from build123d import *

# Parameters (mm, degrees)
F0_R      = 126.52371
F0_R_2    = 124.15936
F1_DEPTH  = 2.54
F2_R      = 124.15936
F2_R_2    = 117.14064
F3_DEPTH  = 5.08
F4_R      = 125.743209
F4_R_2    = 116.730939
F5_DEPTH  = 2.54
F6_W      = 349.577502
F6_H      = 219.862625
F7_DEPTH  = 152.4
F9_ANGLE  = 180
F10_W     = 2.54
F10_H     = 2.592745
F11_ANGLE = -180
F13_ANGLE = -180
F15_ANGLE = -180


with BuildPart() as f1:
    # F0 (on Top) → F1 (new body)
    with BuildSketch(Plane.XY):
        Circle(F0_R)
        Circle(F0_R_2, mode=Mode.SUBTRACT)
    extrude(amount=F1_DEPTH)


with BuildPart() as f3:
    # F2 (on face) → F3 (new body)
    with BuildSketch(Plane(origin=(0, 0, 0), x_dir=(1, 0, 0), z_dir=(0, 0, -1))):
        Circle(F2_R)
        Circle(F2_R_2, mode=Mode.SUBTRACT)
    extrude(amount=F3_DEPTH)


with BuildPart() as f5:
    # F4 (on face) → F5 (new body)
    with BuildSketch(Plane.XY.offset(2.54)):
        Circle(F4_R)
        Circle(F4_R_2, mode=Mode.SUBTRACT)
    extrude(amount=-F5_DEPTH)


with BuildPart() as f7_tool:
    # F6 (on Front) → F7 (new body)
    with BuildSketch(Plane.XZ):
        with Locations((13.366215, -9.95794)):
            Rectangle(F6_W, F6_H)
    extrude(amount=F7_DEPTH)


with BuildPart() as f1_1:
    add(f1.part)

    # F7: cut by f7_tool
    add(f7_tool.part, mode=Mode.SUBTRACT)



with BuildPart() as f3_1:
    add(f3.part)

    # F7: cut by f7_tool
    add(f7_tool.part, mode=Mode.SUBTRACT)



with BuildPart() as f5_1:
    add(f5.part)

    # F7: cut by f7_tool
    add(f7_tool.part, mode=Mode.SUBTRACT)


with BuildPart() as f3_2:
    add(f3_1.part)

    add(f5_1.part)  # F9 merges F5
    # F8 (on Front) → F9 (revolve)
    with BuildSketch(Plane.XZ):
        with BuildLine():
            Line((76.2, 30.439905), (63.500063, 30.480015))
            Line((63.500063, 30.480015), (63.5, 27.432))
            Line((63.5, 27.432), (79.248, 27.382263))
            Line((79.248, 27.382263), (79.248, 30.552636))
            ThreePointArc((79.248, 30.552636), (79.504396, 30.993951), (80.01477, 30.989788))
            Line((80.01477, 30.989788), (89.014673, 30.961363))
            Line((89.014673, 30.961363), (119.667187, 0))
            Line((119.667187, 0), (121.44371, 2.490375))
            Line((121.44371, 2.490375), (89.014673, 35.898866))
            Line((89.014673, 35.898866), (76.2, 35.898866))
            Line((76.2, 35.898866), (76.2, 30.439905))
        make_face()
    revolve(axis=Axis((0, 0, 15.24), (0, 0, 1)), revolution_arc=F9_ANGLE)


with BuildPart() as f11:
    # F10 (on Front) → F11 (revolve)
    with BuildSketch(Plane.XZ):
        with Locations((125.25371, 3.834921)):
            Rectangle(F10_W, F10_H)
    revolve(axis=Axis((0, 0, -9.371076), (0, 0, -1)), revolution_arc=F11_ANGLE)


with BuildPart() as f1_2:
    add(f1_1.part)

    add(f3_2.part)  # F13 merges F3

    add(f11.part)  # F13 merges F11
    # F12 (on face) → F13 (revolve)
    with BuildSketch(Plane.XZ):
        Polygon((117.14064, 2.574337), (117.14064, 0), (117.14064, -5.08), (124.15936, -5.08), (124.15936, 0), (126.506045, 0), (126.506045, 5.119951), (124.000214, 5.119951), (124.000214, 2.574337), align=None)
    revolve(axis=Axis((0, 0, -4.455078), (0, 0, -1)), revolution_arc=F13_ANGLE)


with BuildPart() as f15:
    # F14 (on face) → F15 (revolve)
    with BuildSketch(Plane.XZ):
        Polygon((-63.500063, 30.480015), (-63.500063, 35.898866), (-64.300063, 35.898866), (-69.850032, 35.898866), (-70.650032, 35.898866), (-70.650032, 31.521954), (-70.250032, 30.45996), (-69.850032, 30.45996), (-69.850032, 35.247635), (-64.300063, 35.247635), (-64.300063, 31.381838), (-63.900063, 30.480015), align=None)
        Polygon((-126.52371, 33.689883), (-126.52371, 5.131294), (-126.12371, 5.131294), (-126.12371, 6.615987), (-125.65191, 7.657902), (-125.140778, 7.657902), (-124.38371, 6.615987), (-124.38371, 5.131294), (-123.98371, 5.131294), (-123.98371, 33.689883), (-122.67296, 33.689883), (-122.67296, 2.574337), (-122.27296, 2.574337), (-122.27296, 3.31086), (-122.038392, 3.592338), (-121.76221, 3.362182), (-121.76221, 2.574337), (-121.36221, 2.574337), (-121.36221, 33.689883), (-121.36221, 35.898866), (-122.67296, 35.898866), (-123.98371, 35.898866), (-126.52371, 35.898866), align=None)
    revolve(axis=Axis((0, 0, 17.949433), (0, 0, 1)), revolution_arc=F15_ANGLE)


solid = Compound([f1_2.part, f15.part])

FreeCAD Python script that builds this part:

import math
import FreeCAD as App
import Part
import Sketcher

V = App.Vector
Q = App.Units.Quantity


def add_polygon(sketch, points):
    """Adds a closed chain of lines whose ends are joined by coincident constraints."""
    first, n = sketch.GeometryCount, len(points)
    for a, b in zip(points, points[1:] + points[:1]):
        sketch.addGeometry(Part.LineSegment(App.Vector(*a, 0), App.Vector(*b, 0)), False)
    for i in range(n):
        sketch.addConstraint(Sketcher.Constraint("Coincident", first + i, 2, first + (i + 1) % n, 1))

doc = App.newDocument("Part")
body = doc.addObject("PartDesign::Body", "Body")

# Sketch on XY plane
sketch1 = body.newObject("Sketcher::SketchObject", "Sketch")
sketch1.AttachmentSupport = (doc.getObject("XY_Plane"), [""])
sketch1.MapMode = "FlatFace"
sketch1.addGeometry([
    Part.Circle(V(0, 0, 0), V(0, 0, 1), 127),
    Part.Circle(V(0, 0, 0), V(0, 0, 1), 124),
], False)
sketch1.addConstraint([
    Sketcher.Constraint("Coincident", 0, 3, -1, 1),
    Sketcher.Constraint("Coincident", 1, 3, -1, 1),
    Sketcher.Constraint("Diameter", 0, 253.04742),
    Sketcher.Constraint("Diameter", 1, 248.31872),
])
pad1 = body.newObject("PartDesign::Pad", "Pad")
pad1.Profile = sketch1
pad1.Length = Q("0.1 in")
body2 = doc.addObject("PartDesign::Body", "Body001")

# Sketch on XY plane
sketch2 = body2.newObject("Sketcher::SketchObject", "Sketch001")
sketch2.AttachmentSupport = (doc.getObject("XY_Plane001"), [""])
sketch2.MapMode = "FlatFace"
sketch2.addGeometry([
    Part.Circle(V(0, 0, 0), V(0, 0, 1), 124),
    Part.Circle(V(0, 0, 0), V(0, 0, 1), 117),
], False)
sketch2.addConstraint([
    Sketcher.Constraint("Coincident", 0, 3, -1, 1),
    Sketcher.Constraint("Coincident", 1, 3, -1, 1),
    Sketcher.Constraint("Diameter", 0, 248.31872),
    Sketcher.Constraint("Diameter", 1, 234.28128),
])
pad2 = body2.newObject("PartDesign::Pad", "Pad001")
pad2.Profile = sketch2
pad2.Length = Q("0.2 in")
pad2.Reversed = True
body3 = doc.addObject("PartDesign::Body", "Body002")

# Sketch on XY plane
sketch3 = body3.newObject("Sketcher::SketchObject", "Sketch002")
sketch3.AttachmentSupport = (doc.getObject("XY_Plane002"), [""])
sketch3.MapMode = "FlatFace"
sketch3.AttachmentOffset = App.Placement(V(0, 0, 0.1 * 25.4), App.Rotation())
sketch3.addGeometry([
    Part.Circle(V(0, 0, 0), V(0, 0, 1), 126),
    Part.Circle(V(0, 0, 0), V(0, 0, 1), 117),
], False)
sketch3.addConstraint([
    Sketcher.Constraint("Coincident", 0, 3, -1, 1),
    Sketcher.Constraint("Coincident", 1, 3, -1, 1),
    Sketcher.Constraint("Diameter", 1, 233.461878),
    Sketcher.Constraint("Diameter", 0, 251.486418),
])
pad3 = body3.newObject("PartDesign::Pad", "Pad002")
pad3.Profile = sketch3
pad3.Length = Q("0.1 in")
pad3.Reversed = True
body4 = doc.addObject("PartDesign::Body", "Body003")

# Sketch on XZ plane
sketch4 = body4.newObject("Sketcher::SketchObject", "Sketch003")
sketch4.AttachmentSupport = (doc.getObject("XZ_Plane003"), [""])
sketch4.MapMode = "FlatFace"
add_polygon(sketch4, [(-161, 100), (-161, -120), (188, -120), (188, 100)])  # lines 0-3
sketch4.addConstraint([
    Sketcher.Constraint("Vertical", 0),
    Sketcher.Constraint("Horizontal", 1),
    Sketcher.Constraint("Vertical", 2),
    Sketcher.Constraint("Horizontal", 3),
    Sketcher.Constraint("DistanceX", 1, 1, 1, 2, 349.577502),
    Sketcher.Constraint("DistanceY", 0, 2, 0, 1, 219.862625),
    Sketcher.Constraint("DistanceX", 0, 2, -1, 1, 161.422536),
    Sketcher.Constraint("DistanceY", 0, 2, -1, 1, 119.889252),
])
pad4 = body4.newObject("PartDesign::Pad", "Pad003")
pad4.Profile = sketch4
pad4.Length = Q("6 in")
doc.recompute()

body5 = doc.addObject("PartDesign::Body", "Body004")
body5.BaseFeature = body4
boolean = body.newObject("PartDesign::Boolean", "Boolean")
boolean.Type = "Cut"
boolean.addObjects([body5])
doc.recompute()

body6 = doc.addObject("PartDesign::Body", "Body005")
body6.BaseFeature = body4
boolean2 = body2.newObject("PartDesign::Boolean", "Boolean001")
boolean2.Type = "Cut"
boolean2.addObjects([body6])
doc.recompute()

boolean3 = body3.newObject("PartDesign::Boolean", "Boolean002")
boolean3.Type = "Cut"
boolean3.addObjects([body4])
doc.recompute()

boolean4 = body2.newObject("PartDesign::Boolean", "Boolean003")
boolean4.Type = "Fuse"
boolean4.addObjects([body3])

# Sketch on XZ plane
sketch5 = body2.newObject("Sketcher::SketchObject", "Sketch004")
sketch5.AttachmentSupport = (doc.getObject("XZ_Plane001"), [""])
sketch5.MapMode = "FlatFace"
sketch5.addGeometry([
    Part.LineSegment(V(76.2, 30.4, 0), V(63.5, 30.5, 0)),  # 0
    Part.LineSegment(V(63.5, 30.5, 0), V(63.5, 27.4, 0)),  # 1
    Part.LineSegment(V(63.5, 27.4, 0), V(79.2, 27.4, 0)),  # 2
    Part.LineSegment(V(79.2, 27.4, 0), V(79.2, 30.6, 0)),  # 3
    Part.ArcOfCircle(Part.Circle(V(79.8, 30.6, 0), V(0, 0, 1), 0.5), math.radians(59), math.radians(180)),  # 4
    Part.LineSegment(V(80, 31, 0), V(89, 31, 0)),  # 5
    Part.LineSegment(V(89, 31, 0), V(119.7, 0, 0)),  # 6
    Part.LineSegment(V(119.7, 0, 0), V(121.4, 2.5, 0)),  # 7
    Part.LineSegment(V(121.4, 2.5, 0), V(89, 35.9, 0)),  # 8
    Part.LineSegment(V(89, 35.9, 0), V(76.2, 35.9, 0)),  # 9
    Part.LineSegment(V(76.2, 35.9, 0), V(76.2, 30.4, 0)),  # 10
], False)
sketch5.addConstraint([
    Sketcher.Constraint("Coincident", 0, 2, 1, 1),
    Sketcher.Constraint("Coincident", 1, 2, 2, 1),
    Sketcher.Constraint("Coincident", 2, 2, 3, 1),
    Sketcher.Constraint("Tangent", 3, 2, 4, 2),
    Sketcher.Constraint("Coincident", 4, 1, 5, 1),
    Sketcher.Constraint("Coincident", 5, 2, 6, 1),
    Sketcher.Constraint("Coincident", 6, 2, 7, 1),
    Sketcher.Constraint("Coincident", 7, 2, 8, 1),
    Sketcher.Constraint("Coincident", 8, 2, 9, 1),
    Sketcher.Constraint("Coincident", 9, 2, 10, 1),
    Sketcher.Constraint("Coincident", 10, 2, 0, 1),
    Sketcher.Constraint("Vertical", 3),
    Sketcher.Constraint("Horizontal", 9),
    Sketcher.Constraint("Vertical", 10),
    Sketcher.Constraint("PointOnObject", 6, 2, -1),
    Sketcher.Constraint("Parallel", 0, 2),
    Sketcher.Constraint("Parallel", 2, 5),
    Sketcher.Constraint("Vertical", 5, 2, 8, 2),
    Sketcher.Constraint("Radius", 4, Q("0.02 in")),
    Sketcher.Constraint("DistanceX", -1, 1, 9, 2, Q("3 in")),
    Sketcher.Constraint("Distance", 0, Q("0.5 in")),
    Sketcher.Constraint("DistanceX", -1, 1, 1, 2, Q("2.5 in")),
    Sketcher.Constraint("DistanceX", -1, 1, 4, 3, Q("3.14 in")),
    Sketcher.Constraint("DistanceY", -1, 1, 1, 2, Q("1.08 in")),
    Sketcher.Constraint("DistanceY", 10, 2, 10, 1, 5.458961),
    Sketcher.Constraint("DistanceY", 2, 2, 5, 2, 3.5791),
    Sketcher.Constraint("DistanceX", 9, 2, 9, 1, 12.814673),
    Sketcher.Constraint("DistanceY", 3, 1, 3, 2, 3.170373),
    Sketcher.Constraint("DistanceX", -1, 1, 4, 1, 80.01477),
    Sketcher.Constraint("DistanceX", -1, 1, 7, 2, 121.44371),
    Sketcher.Constraint("DistanceY", 0, 2, 4, 3, 0.07262),
    Sketcher.Constraint("DistanceY", 7, 2, 4, 3, 28.06226),
    Sketcher.Constraint("Distance", 6, 43.568138),
])
revolution = body2.newObject("PartDesign::Revolution", "Revolution")
revolution.Profile = sketch5
revolution.ReferenceAxis = (sketch5, ["V_Axis"])
revolution.Angle = 180
body7 = doc.addObject("PartDesign::Body", "Body006")

# Sketch on XZ plane
sketch6 = body7.newObject("Sketcher::SketchObject", "Sketch005")
sketch6.AttachmentSupport = (doc.getObject("XZ_Plane006"), [""])
sketch6.MapMode = "FlatFace"
add_polygon(sketch6, [(124, 5.1), (124, 2.5), (126.5, 2.5), (126.5, 5.1)])  # lines 0-3
sketch6.addConstraint([
    Sketcher.Constraint("Vertical", 0),
    Sketcher.Constraint("Horizontal", 1),
    Sketcher.Constraint("Vertical", 2),
    Sketcher.Constraint("Horizontal", 3),
    Sketcher.Constraint("DistanceX", 1, 1, 1, 2, Q("0.1 in")),
    Sketcher.Constraint("DistanceY", 0, 2, 0, 1, 2.592745),
    Sketcher.Constraint("DistanceX", -1, 1, 0, 2, 123.98371),
    Sketcher.Constraint("DistanceY", -1, 1, 0, 2, 2.538549),
])
revolution2 = body7.newObject("PartDesign::Revolution", "Revolution001")
revolution2.Profile = sketch6
revolution2.ReferenceAxis = (sketch6, ["V_Axis"])
revolution2.Angle = 180
doc.recompute()

boolean5 = body.newObject("PartDesign::Boolean", "Boolean004")
boolean5.Type = "Fuse"
boolean5.addObjects([body2])
doc.recompute()

boolean6 = body.newObject("PartDesign::Boolean", "Boolean005")
boolean6.Type = "Fuse"
boolean6.addObjects([body7])

# Sketch on XZ plane
sketch7 = body.newObject("Sketcher::SketchObject", "Sketch006")
sketch7.AttachmentSupport = (doc.getObject("XZ_Plane"), [""])
sketch7.MapMode = "FlatFace"
add_polygon(sketch7, [(117.1, 2.6), (117.1, -5.1), (124.2, -5.1), (124.2, 0), (126.5, 0), (126.5, 5.1), (124, 5.1), (124, 2.6)])  # lines 0-7
sketch7.addConstraint([
    Sketcher.Constraint("Vertical", 0),
    Sketcher.Constraint("Horizontal", 1),
    Sketcher.Constraint("Vertical", 2),
    Sketcher.Constraint("Horizontal", 3),
    Sketcher.Constraint("Vertical", 4),
    Sketcher.Constraint("Horizontal", 5),
    Sketcher.Constraint("Vertical", 6),
    Sketcher.Constraint("Horizontal", 7),
    Sketcher.Constraint("PointOnObject", 2, 2, -1),
    Sketcher.Constraint("DistanceY", 2, 1, 2, 2, Q("0.2 in")),
    Sketcher.Constraint("DistanceX", 1, 1, 1, 2, 7.01872),
    Sketcher.Constraint("DistanceX", 5, 2, 5, 1, 2.505831),
    Sketcher.Constraint("DistanceY", 4, 1, 4, 2, 5.119951),
    Sketcher.Constraint("DistanceX", 3, 1, 3, 2, 2.346685),
    Sketcher.Constraint("DistanceY", 0, 2, 0, 1, 7.654337),
    Sketcher.Constraint("DistanceX", -1, 1, 0, 2, 117.14064),
])
revolution3 = body.newObject("PartDesign::Revolution", "Revolution002")
revolution3.Profile = sketch7
revolution3.ReferenceAxis = (sketch7, ["V_Axis"])
revolution3.Angle = 180
body8 = doc.addObject("PartDesign::Body", "Body007")
body8.AllowCompound = True

# Sketch on XZ plane
sketch8 = body8.newObject("Sketcher::SketchObject", "Sketch007")
sketch8.AttachmentSupport = (doc.getObject("XZ_Plane007"), [""])
sketch8.MapMode = "FlatFace"
add_polygon(sketch8, [(-63.5, 30.48), (-63.5, 35.9), (-70.65, 35.9), (-70.65, 31.52), (-70.25, 30.46), (-69.85, 30.46), (-69.85, 35.25), (-64.3, 35.25), (-64.3, 31.38), (-63.9, 30.48)])  # lines 0-9
add_polygon(sketch8, [(-126.52, 5.13), (-126.12, 5.13), (-126.12, 6.62), (-125.65, 7.66), (-125.14, 7.66), (-124.38, 6.62), (-124.38, 5.13), (-123.98, 5.13), (-123.98, 33.69), (-122.67, 33.69), (-122.67, 2.57), (-122.27, 2.57), (-122.27, 3.31), (-122.04, 3.59), (-121.76, 3.36), (-121.76, 2.57), (-121.36, 2.57), (-121.36, 35.9), (-126.52, 35.9)])  # lines 10-28
sketch8.addConstraint([
    Sketcher.Constraint("Vertical", 0),
    Sketcher.Constraint("Horizontal", 1),
    Sketcher.Constraint("Vertical", 2),
    Sketcher.Constraint("Horizontal", 4),
    Sketcher.Constraint("Vertical", 5),
    Sketcher.Constraint("Horizontal", 6),
    Sketcher.Constraint("Vertical", 7),
    Sketcher.Constraint("Horizontal", 9),
    Sketcher.Constraint("Horizontal", 10),
    Sketcher.Constraint("Vertical", 11),
    Sketcher.Constraint("Horizontal", 13),
    Sketcher.Constraint("Vertical", 15),
    Sketcher.Constraint("Horizontal", 16),
    Sketcher.Constraint("Vertical", 17),
    Sketcher.Constraint("Horizontal", 18),
    Sketcher.Constraint("Vertical", 19),
    Sketcher.Constraint("Horizontal", 20),
    Sketcher.Constraint("Vertical", 21),
    Sketcher.Constraint("Vertical", 24),
    Sketcher.Constraint("Horizontal", 25),
    Sketcher.Constraint("Vertical", 26),
    Sketcher.Constraint("Horizontal", 27),
    Sketcher.Constraint("Vertical", 28),
    Sketcher.Constraint("Horizontal", 11, 2, 14, 2),
    Sketcher.Constraint("Horizontal", 10, 2, 15, 2),
    Sketcher.Constraint("Horizontal", 20, 2, 24, 2),
    Sketcher.Constraint("Horizontal", 1, 2, 26, 2),
    Sketcher.Constraint("Equal", 4, 9),
    Sketcher.Constraint("Equal", 9, 10),
    Sketcher.Constraint("Equal", 10, 16),
    Sketcher.Constraint("Equal", 16, 20),
    Sketcher.Constraint("Equal", 20, 25),
    Sketcher.Constraint("DistanceX", 27, 2, 17, 2, Q("0.1 in")),
    Sketcher.Constraint("DistanceX", 4, 1, 4, 2, 0.4),
    Sketcher.Constraint("DistanceX", 27, 2, 27, 1, 5.1615),
    Sketcher.Constraint("DistanceX", 1, 2, 1, 1, 7.149969),
    Sketcher.Constraint("DistanceX", 6, 1, 6, 2, 5.549969),
    Sketcher.Constraint("DistanceX", 18, 1, 18, 2, 1.31075),
    Sketcher.Constraint("DistanceY", 0, 1, 0, 2, 5.418851),
    Sketcher.Constraint("DistanceY", 2, 2, 2, 1, 4.376912),
    Sketcher.Constraint("DistanceY", 17, 1, 17, 2, 28.558589),
    Sketcher.Constraint("DistanceY", 26, 1, 26, 2, 33.324529),
    Sketcher.Constraint("DistanceY", 28, 2, 28, 1, 30.767572),
    Sketcher.Constraint("DistanceX", 2, 2, 3, 2, 0.4),
    Sketcher.Constraint("DistanceX", 11, 2, 12, 2, 0.4718),
    Sketcher.Constraint("DistanceY", 20, 2, 22, 2, 1.018001),
    Sketcher.Constraint("Distance", 8, 0.986552),
    Sketcher.Constraint("Distance", 14, 1.28792),
    Sketcher.Constraint("Distance", 23, 0.359511),
    Sketcher.Constraint("DistanceX", 13, 1, 13, 2, 0.511132),
    Sketcher.Constraint("DistanceY", 5, 1, 5, 2, 4.787675),
    Sketcher.Constraint("DistanceY", 7, 2, 7, 1, 3.865797),
    Sketcher.Constraint("DistanceY", 11, 1, 11, 2, 1.484693),
    Sketcher.Constraint("DistanceY", 21, 1, 21, 2, 0.736523),
    Sketcher.Constraint("DistanceY", 24, 2, 24, 1, 0.787845),
    Sketcher.Constraint("DistanceX", 1, 2, -1, 1, 70.650032),
    Sketcher.Constraint("DistanceY", -1, 1, 3, 2, 30.45996),
    Sketcher.Constraint("DistanceX", 10, 2, -1, 1, 126.12371),
])
revolution4 = body8.newObject("PartDesign::Revolution", "Revolution003")
revolution4.Profile = sketch8
revolution4.ReferenceAxis = (sketch8, ["V_Axis"])
revolution4.Angle = 180
revolution4.Reversed = True

doc.recompute()
